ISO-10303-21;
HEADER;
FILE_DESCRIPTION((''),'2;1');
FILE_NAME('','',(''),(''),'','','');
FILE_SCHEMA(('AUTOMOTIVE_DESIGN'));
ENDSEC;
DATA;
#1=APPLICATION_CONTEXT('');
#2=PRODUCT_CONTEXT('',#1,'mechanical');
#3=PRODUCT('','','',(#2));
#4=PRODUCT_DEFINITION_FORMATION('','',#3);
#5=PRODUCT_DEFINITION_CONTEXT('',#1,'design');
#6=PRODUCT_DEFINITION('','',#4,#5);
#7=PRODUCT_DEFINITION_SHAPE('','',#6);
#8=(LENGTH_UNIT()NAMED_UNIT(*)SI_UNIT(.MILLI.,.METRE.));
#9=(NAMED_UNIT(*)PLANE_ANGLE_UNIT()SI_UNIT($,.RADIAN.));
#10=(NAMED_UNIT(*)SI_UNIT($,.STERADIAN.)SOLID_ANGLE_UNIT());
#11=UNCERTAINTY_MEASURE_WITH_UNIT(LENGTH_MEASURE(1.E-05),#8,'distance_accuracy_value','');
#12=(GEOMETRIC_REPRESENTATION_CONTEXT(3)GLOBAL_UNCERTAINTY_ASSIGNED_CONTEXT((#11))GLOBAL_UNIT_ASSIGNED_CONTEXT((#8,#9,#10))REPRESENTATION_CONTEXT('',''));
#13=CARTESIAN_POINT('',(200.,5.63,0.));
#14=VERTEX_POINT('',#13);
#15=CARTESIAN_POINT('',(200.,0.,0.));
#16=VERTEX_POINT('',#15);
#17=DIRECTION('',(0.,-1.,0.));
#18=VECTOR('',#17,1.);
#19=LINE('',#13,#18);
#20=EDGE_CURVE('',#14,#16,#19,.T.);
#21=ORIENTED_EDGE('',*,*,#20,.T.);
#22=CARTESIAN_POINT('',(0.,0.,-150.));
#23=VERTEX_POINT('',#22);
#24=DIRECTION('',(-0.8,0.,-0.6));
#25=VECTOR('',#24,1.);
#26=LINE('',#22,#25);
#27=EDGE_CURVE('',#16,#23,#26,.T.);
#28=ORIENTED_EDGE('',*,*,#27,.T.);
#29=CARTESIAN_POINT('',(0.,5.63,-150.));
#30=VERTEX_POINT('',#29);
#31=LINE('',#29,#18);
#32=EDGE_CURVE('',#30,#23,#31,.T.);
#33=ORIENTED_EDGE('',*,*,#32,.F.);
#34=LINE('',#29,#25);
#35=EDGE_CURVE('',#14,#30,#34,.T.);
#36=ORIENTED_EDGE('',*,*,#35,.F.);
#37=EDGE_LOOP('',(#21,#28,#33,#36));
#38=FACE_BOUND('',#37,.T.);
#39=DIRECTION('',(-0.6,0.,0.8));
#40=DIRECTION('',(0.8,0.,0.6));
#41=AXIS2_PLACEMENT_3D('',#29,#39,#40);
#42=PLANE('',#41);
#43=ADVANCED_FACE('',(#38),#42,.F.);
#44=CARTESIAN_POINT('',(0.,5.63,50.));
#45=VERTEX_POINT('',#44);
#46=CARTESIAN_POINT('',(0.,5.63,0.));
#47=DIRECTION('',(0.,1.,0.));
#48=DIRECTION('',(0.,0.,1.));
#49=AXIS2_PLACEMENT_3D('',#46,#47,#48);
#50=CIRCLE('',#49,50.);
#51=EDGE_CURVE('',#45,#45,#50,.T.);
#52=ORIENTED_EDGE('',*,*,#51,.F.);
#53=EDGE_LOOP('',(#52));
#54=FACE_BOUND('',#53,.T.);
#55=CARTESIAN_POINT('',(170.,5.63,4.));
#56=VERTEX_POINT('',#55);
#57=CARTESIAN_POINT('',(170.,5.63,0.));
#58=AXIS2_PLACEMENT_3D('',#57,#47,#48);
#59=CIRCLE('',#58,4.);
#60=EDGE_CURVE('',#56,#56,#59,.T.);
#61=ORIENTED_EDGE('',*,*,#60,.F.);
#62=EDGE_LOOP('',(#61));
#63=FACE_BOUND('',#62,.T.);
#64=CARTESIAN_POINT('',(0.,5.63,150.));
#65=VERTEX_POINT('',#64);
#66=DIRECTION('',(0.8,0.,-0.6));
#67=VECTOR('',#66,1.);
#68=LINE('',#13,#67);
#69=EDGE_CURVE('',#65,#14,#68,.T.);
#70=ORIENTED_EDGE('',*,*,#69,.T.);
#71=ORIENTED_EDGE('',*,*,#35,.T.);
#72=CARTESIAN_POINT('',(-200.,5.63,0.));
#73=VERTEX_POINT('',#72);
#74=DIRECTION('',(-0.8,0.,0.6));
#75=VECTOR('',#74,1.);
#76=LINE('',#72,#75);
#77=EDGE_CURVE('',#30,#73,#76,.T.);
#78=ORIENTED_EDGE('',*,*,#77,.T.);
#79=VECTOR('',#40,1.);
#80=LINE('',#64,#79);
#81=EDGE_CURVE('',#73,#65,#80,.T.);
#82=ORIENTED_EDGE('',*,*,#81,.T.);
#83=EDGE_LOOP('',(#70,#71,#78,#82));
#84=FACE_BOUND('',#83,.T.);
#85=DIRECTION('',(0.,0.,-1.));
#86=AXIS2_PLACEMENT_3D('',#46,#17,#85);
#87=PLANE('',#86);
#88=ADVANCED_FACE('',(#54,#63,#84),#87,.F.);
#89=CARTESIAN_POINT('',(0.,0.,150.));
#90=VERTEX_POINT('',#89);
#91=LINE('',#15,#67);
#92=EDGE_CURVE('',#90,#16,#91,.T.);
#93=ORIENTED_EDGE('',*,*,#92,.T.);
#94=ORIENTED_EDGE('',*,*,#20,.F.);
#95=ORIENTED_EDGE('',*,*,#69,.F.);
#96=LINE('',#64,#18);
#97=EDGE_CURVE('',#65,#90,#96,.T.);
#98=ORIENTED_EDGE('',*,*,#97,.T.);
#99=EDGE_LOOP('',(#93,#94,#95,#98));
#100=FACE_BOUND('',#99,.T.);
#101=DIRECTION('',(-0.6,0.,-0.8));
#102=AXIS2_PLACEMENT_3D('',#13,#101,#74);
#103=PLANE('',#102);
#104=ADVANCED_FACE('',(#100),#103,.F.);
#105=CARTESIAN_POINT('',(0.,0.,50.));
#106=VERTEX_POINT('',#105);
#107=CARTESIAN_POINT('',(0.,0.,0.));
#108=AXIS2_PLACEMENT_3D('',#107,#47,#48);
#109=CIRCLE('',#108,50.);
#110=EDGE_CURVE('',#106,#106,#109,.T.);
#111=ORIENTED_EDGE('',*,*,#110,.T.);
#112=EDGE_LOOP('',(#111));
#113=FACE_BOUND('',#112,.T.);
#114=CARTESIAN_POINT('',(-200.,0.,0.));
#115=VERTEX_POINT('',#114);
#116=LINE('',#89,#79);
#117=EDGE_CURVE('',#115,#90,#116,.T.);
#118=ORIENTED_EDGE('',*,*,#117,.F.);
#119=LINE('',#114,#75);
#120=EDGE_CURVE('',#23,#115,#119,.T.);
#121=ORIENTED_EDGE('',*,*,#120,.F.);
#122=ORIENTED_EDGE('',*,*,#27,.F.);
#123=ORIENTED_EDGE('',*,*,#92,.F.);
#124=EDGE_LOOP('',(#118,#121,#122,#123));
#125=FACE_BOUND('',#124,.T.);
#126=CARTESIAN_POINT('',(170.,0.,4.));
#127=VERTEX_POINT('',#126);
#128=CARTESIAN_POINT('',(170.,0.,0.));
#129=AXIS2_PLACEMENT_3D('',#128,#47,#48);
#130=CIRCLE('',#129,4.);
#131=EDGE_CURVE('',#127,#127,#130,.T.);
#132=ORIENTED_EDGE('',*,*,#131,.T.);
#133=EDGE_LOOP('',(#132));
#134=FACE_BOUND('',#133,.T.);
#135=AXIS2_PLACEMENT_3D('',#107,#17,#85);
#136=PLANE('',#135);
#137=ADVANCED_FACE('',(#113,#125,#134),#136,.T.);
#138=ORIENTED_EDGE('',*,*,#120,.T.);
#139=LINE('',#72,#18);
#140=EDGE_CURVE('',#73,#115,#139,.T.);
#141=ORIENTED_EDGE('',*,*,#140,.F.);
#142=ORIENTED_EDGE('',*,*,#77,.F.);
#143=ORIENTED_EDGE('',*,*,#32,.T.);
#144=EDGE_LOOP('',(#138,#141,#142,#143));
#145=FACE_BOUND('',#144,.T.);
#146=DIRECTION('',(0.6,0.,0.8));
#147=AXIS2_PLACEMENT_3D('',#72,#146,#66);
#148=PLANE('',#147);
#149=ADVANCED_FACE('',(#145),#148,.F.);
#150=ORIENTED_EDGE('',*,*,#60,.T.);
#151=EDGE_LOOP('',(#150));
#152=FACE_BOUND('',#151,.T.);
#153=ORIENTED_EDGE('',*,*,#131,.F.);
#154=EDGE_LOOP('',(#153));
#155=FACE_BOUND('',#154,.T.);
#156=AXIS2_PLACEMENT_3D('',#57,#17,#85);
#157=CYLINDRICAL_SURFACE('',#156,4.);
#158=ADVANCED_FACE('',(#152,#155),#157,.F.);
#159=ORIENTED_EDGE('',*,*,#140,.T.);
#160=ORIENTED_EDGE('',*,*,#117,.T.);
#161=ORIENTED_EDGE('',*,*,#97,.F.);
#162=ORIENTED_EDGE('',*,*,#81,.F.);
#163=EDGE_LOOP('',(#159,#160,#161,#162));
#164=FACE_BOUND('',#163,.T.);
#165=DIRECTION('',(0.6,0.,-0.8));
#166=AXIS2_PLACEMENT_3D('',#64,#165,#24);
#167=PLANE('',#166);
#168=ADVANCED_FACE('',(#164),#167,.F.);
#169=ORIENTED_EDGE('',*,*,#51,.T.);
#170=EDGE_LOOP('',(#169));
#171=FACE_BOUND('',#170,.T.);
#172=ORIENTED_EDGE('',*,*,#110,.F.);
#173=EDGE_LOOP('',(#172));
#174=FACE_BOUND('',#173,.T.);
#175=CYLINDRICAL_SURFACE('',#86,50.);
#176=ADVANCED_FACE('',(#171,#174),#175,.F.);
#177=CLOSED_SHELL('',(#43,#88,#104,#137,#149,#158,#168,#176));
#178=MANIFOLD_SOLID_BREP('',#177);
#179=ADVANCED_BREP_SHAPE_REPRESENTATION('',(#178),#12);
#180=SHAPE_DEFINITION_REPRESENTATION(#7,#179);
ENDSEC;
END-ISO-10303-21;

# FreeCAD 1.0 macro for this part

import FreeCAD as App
import Part
import Sketcher
Q = App.Units.Quantity

doc = App.newDocument("Part")
body = doc.addObject("PartDesign::Body", "Body")

sketch1 = doc.addObject("Sketcher::SketchObject", "Sketch")
body.addObject(sketch1)
sketch1.AttachmentSupport = (doc.XZ_Plane, [""])
sketch1.MapMode = "FlatFace"
sketch1.addGeometry([
    Part.LineSegment(App.Vector(200, 0, 0), App.Vector(0, -150, 0)),
    Part.LineSegment(App.Vector(0, -150, 0), App.Vector(-200, 0, 0)),
    Part.LineSegment(App.Vector(-200, 0, 0), App.Vector(0, 150, 0)),
    Part.LineSegment(App.Vector(0, 150, 0), App.Vector(200, 0, 0)),
    Part.Circle(App.Vector(170, 0, 0), App.Vector(0, 0, 1), 4),
    Part.Circle(App.Vector(0, 0, 0), App.Vector(0, 0, 1), 50),
], False)
sketch1.addConstraint([
    Sketcher.Constraint("Coincident", 0, 2, 1, 1),
    Sketcher.Constraint("Coincident", 1, 2, 2, 1),
    Sketcher.Constraint("Coincident", 2, 2, 3, 1),
    Sketcher.Constraint("Coincident", 3, 2, 0, 1),
    Sketcher.Constraint("Coincident", 5, 3, -1, 1),
    Sketcher.Constraint("Symmetric", 0, 2, 2, 2, -1, 1),
    Sketcher.Constraint("Symmetric", 1, 2, 3, 2, -1, 1),
    Sketcher.Constraint("PointOnObject", 4, 3, -1),
    Sketcher.Constraint("PointOnObject", 0, 2, -2),
    Sketcher.Constraint("PointOnObject", 1, 2, -1),
    Sketcher.Constraint("Diameter", 4, Q("8 mm")),
    Sketcher.Constraint("Diameter", 5, Q("100 mm")),
    Sketcher.Constraint("Distance", 0, Q("250 mm")),
    Sketcher.Constraint("DistanceX", -1, 1, 4, 3, Q("170 mm")),
    Sketcher.Constraint("DistanceY", 0, 2, -1, 1, Q("150 mm")),
])
pad1 = doc.addObject("PartDesign::Pad", "Pad")
body.addObject(pad1)
pad1.Profile = sketch1
pad1.Length = 5.63
pad1.Reversed = True

doc.recompute()
